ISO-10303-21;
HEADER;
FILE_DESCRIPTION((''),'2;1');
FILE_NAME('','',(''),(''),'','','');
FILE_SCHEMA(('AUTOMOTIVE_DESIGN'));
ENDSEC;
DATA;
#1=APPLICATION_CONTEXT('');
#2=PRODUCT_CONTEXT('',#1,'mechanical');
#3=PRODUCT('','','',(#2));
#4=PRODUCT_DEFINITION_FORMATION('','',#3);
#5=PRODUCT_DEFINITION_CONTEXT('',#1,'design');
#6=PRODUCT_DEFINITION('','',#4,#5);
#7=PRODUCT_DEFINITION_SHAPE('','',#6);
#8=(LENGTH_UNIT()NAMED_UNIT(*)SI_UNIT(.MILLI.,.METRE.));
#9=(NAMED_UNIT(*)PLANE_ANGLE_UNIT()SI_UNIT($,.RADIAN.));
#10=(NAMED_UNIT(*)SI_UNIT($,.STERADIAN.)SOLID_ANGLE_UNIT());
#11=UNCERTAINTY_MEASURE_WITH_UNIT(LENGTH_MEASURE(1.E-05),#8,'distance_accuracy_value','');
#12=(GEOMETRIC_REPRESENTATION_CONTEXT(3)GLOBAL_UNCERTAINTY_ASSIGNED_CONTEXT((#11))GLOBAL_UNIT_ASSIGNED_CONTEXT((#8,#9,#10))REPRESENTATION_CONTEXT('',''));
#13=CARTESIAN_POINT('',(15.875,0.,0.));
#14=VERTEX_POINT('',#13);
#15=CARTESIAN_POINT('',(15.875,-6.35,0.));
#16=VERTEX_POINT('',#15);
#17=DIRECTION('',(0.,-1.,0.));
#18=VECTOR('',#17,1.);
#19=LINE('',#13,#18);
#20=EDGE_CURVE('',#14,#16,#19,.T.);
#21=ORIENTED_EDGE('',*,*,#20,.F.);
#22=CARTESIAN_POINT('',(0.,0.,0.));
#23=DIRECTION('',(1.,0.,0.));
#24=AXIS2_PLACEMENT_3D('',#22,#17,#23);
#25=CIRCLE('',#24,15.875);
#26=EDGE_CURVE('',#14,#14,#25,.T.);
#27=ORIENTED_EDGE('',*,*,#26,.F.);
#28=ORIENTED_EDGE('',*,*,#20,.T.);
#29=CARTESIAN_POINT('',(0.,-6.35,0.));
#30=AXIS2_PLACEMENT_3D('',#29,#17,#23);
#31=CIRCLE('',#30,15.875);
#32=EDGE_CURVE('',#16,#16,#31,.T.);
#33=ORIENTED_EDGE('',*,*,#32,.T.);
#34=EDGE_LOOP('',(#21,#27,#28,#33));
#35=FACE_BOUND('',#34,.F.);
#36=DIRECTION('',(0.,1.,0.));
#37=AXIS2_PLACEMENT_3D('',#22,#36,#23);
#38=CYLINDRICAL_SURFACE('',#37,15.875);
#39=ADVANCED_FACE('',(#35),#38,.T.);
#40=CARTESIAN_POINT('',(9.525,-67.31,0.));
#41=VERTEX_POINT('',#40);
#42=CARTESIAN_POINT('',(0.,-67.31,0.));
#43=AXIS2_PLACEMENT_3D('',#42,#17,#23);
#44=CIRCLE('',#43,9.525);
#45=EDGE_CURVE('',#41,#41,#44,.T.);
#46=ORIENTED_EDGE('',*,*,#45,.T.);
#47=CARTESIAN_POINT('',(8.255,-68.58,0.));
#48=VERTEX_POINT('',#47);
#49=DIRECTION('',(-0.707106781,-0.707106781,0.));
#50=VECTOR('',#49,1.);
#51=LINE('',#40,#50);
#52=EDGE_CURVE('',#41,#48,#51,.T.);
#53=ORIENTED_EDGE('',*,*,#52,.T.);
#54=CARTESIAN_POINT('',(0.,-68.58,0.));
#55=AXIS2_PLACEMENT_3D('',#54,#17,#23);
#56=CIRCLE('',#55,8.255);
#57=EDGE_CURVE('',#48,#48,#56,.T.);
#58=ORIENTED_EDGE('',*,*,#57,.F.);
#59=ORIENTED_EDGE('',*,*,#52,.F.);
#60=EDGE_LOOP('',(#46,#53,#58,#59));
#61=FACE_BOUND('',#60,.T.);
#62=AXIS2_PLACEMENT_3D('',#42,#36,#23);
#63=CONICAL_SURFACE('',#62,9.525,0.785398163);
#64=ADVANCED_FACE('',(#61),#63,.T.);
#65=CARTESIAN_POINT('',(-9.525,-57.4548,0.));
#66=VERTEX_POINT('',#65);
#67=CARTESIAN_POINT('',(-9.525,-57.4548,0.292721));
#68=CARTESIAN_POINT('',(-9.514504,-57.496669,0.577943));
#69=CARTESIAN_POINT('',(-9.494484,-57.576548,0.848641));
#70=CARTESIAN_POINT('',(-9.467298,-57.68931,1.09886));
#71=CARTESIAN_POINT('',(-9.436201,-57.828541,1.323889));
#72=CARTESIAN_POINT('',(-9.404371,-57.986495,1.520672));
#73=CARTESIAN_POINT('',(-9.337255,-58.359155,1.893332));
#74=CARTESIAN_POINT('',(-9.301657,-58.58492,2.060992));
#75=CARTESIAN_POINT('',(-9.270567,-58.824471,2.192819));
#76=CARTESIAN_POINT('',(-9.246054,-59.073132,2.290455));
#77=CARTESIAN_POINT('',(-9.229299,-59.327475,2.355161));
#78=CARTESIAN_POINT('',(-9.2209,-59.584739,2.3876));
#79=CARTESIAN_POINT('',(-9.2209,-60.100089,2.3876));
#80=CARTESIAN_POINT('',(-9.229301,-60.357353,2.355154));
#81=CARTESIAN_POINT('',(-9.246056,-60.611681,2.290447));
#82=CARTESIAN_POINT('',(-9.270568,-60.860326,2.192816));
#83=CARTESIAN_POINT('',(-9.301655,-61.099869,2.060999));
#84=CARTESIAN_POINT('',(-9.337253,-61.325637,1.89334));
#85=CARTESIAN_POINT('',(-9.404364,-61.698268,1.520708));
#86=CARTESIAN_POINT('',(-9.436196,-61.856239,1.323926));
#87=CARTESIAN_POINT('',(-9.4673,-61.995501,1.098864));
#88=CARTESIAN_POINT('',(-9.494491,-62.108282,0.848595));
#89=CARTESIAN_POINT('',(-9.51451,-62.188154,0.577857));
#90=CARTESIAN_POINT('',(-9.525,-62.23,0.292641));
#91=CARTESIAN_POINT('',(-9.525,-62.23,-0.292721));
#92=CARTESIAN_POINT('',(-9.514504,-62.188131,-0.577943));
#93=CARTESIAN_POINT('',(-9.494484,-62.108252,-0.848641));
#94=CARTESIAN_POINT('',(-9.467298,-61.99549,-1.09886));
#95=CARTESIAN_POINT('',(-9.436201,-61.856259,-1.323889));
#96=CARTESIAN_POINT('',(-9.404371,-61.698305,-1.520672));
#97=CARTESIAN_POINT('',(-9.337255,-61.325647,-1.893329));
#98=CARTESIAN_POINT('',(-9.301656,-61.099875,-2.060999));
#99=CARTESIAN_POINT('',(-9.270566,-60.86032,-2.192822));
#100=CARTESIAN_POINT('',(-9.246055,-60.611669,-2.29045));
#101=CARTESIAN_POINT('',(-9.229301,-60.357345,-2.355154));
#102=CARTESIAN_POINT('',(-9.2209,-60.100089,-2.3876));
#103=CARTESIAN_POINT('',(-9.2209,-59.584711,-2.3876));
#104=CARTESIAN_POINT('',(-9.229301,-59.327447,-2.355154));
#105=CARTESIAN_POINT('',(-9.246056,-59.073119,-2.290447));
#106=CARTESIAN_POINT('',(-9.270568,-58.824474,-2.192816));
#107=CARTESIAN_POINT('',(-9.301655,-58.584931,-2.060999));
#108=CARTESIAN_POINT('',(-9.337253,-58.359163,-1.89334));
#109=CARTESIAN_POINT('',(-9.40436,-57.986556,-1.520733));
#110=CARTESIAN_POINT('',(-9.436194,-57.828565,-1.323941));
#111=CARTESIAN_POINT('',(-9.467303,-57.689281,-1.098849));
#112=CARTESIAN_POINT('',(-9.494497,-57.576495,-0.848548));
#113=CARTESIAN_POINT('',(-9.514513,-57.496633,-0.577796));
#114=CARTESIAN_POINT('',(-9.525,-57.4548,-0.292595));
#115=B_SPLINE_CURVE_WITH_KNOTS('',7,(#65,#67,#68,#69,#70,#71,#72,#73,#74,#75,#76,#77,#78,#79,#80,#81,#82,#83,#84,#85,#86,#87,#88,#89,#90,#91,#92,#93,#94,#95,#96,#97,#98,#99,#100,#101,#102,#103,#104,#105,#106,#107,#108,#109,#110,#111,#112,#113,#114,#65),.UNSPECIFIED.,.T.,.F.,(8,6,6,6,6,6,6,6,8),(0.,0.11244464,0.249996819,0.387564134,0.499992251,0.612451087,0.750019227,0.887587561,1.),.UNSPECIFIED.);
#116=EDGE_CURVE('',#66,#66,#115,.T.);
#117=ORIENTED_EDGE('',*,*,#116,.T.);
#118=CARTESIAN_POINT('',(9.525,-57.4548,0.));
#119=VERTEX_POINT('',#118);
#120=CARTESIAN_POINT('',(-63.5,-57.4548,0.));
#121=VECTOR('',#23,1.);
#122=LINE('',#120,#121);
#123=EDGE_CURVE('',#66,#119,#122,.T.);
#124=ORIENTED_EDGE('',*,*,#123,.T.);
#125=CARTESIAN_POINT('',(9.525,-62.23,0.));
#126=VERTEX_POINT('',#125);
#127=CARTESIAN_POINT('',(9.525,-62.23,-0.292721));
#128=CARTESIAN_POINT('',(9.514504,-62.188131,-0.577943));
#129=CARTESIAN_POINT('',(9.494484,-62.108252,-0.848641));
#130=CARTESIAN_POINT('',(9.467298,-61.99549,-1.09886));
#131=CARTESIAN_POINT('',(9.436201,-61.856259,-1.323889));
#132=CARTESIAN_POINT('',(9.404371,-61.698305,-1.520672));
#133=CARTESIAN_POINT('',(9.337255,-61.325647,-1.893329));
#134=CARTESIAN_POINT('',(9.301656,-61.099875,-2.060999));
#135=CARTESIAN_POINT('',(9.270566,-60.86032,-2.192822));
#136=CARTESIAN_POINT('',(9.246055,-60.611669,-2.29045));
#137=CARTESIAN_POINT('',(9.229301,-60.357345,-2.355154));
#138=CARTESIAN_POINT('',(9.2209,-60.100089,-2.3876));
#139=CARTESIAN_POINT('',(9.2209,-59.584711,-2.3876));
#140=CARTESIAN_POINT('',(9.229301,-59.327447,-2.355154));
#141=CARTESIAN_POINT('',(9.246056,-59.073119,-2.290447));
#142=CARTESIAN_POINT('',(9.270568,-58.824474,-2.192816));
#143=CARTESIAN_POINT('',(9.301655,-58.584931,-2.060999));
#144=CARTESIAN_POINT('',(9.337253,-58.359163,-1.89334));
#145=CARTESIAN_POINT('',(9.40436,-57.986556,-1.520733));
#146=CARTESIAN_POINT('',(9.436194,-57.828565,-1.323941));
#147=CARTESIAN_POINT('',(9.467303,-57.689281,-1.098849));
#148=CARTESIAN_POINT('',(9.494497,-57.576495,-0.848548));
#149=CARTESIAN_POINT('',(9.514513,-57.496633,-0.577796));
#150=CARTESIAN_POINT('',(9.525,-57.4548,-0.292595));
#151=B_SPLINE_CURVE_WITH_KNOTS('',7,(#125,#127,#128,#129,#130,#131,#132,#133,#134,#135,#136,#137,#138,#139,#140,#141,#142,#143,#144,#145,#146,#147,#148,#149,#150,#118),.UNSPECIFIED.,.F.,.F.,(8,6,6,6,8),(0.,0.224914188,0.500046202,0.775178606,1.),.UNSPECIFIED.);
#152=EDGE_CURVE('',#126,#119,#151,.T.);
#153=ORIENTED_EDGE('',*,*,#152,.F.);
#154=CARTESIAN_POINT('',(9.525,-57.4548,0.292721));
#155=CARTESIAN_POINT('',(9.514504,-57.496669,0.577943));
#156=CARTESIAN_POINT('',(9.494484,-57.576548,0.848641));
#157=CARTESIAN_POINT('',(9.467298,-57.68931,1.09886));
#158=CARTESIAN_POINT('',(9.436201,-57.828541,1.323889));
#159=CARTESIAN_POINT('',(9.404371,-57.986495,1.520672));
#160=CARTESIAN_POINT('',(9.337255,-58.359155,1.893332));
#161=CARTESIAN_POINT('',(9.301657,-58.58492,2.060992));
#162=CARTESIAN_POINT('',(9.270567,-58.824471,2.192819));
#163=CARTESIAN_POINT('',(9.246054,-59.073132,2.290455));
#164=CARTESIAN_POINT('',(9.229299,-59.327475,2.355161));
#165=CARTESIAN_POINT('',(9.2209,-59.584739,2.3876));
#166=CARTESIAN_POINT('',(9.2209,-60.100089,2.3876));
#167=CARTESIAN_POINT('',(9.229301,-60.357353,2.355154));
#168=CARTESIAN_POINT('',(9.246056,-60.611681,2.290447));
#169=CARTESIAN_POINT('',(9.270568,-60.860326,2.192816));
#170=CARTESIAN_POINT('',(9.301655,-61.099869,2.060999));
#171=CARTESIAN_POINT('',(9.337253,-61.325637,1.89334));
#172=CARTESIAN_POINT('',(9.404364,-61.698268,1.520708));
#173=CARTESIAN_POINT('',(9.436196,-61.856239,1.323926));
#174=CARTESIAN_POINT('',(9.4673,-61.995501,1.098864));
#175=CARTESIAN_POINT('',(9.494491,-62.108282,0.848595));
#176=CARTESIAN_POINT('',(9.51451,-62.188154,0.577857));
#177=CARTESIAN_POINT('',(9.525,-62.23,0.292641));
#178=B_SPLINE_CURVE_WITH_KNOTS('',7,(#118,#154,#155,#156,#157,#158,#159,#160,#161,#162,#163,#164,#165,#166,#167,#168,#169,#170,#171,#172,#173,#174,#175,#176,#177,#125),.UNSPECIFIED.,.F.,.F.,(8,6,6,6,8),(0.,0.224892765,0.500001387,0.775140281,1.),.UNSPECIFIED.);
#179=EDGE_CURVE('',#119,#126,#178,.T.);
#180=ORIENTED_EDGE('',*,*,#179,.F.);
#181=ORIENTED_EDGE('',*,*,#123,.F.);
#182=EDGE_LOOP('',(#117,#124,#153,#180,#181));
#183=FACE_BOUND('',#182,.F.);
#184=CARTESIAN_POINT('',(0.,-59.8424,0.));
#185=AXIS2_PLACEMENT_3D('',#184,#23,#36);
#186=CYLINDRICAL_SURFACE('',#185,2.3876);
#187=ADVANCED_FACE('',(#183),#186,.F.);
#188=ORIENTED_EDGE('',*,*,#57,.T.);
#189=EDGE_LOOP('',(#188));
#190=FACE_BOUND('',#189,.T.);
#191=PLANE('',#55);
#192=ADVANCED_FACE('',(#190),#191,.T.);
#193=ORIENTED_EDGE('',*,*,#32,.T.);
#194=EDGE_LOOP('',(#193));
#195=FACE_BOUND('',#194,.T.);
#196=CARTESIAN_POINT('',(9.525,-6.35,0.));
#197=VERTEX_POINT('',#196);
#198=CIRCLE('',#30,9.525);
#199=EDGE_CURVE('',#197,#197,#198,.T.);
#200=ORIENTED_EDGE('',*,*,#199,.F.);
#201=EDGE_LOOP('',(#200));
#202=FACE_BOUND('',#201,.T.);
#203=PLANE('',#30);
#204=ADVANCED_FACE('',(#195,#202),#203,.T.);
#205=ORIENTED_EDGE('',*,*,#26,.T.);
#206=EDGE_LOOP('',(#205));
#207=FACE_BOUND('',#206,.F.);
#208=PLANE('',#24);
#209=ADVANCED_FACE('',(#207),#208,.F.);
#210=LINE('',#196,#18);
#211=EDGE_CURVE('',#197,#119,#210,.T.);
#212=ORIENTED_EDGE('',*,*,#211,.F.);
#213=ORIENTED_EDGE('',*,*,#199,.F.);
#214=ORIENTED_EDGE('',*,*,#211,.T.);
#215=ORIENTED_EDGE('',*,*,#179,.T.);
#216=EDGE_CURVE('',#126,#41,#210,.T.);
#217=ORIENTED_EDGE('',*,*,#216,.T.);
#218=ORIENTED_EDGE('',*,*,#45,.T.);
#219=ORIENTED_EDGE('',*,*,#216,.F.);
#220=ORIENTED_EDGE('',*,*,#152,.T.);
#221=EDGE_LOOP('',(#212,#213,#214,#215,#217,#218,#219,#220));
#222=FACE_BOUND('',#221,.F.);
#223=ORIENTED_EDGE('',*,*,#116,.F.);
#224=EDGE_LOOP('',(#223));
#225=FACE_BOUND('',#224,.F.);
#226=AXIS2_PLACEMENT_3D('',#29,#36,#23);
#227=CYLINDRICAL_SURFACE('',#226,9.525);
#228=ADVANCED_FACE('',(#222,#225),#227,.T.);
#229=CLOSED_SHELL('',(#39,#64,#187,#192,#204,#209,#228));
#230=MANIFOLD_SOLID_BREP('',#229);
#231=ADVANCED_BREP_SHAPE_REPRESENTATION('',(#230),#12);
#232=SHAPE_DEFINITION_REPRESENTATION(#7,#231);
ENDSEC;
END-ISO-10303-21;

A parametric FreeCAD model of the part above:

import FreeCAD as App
import Part
import Sketcher
Q = App.Units.Quantity


def edges_at(feature, points):
    """Names of the edges that pass closest to the given points."""
    edges = feature.Shape.Edges
    near = lambda p: min(range(len(edges)), key=lambda i: edges[i].distToShape(Part.Vertex(*p))[0])
    return sorted({f"Edge{near(p) + 1}" for p in points})

doc = App.newDocument("Part")
body = doc.addObject("PartDesign::Body", "Body")

sketch1 = body.newObject("Sketcher::SketchObject", "Sketch")
sketch1.AttachmentSupport = (doc.getObject("XZ_Plane"), [""])
sketch1.MapMode = "FlatFace"
sketch1.addGeometry(Part.Circle(App.Vector(0, 0, 0), App.Vector(0, 0, 1), 15.875), False)
sketch1.addConstraint(Sketcher.Constraint("Coincident", 0, 3, -1, 1))
sketch1.addConstraint(Sketcher.Constraint("Diameter", 0, Q("1.25 in")))
pad1 = body.newObject("PartDesign::Pad", "Pad")
pad1.Profile = sketch1
pad1.Length = Q("0.25 in")

sketch2 = body.newObject("Sketcher::SketchObject", "Sketch001")
sketch2.AttachmentSupport = (doc.getObject("XZ_Plane"), [""])
sketch2.MapMode = "FlatFace"
sketch2.AttachmentOffset = App.Placement(App.Vector(0, 0, 0.25 * 25.4), App.Rotation())
sketch2.addGeometry(Part.Circle(App.Vector(0, 0, 0), App.Vector(0, 0, 1), 9.525), False)
sketch2.addConstraint(Sketcher.Constraint("Coincident", 0, 3, -1, 1))
sketch2.addConstraint(Sketcher.Constraint("Diameter", 0, Q("0.75 in")))
pad2 = body.newObject("PartDesign::Pad", "Pad001")
pad2.Profile = sketch2
pad2.Length = Q("2.45 in")

sketch3 = body.newObject("Sketcher::SketchObject", "Sketch002")
sketch3.AttachmentSupport = (doc.getObject("YZ_Plane"), [""])
sketch3.MapMode = "FlatFace"
sketch3.addGeometry(Part.Circle(App.Vector(-59.8424, 0, 0), App.Vector(0, 0, 1), 2.3876), False)
sketch3.addConstraint(Sketcher.Constraint("PointOnObject", 0, 3, -1))
sketch3.addConstraint(Sketcher.Constraint("Diameter", 0, Q("0.188 in")))
sketch3.addConstraint(Sketcher.Constraint("DistanceX", 0, 3, -1, 1, Q("2.356 in")))
pocket1 = body.newObject("PartDesign::Pocket", "Pocket")
pocket1.Profile = sketch3
pocket1.Length = Q("5 in")
pocket1.Midplane = True
doc.recompute()

chamfer = body.newObject("PartDesign::Chamfer", "Chamfer")
chamfer.Base = (pocket1, edges_at(pocket1, [(-9.525, -68.58, 0)]))
chamfer.Size = Q("0.05 in")

doc.recompute()
